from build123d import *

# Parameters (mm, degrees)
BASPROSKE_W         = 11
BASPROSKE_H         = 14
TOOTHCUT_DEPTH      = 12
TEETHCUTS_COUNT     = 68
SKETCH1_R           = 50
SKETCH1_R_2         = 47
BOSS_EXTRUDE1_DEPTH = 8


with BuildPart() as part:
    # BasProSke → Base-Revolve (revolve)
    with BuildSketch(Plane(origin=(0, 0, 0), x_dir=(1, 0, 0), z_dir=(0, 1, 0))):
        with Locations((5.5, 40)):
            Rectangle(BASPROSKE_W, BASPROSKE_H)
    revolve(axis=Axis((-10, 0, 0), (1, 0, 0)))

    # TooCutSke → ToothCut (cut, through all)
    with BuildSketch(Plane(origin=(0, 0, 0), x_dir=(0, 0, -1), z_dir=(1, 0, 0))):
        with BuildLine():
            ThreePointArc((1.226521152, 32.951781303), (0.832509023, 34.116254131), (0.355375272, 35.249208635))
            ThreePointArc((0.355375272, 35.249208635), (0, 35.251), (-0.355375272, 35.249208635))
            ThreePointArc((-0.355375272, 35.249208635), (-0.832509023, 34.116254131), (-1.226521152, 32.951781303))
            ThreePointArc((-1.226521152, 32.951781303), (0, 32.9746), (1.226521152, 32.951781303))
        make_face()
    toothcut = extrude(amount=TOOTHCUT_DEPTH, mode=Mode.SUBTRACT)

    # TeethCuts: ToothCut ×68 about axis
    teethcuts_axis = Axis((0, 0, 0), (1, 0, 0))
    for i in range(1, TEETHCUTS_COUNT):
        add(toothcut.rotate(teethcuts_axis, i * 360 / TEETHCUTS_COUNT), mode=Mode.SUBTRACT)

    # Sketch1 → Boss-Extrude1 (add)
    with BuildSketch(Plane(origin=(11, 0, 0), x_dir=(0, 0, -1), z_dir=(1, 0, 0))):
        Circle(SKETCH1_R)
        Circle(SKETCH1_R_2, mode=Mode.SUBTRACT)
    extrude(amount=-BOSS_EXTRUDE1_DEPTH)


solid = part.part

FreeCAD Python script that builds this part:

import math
import FreeCAD as App
import Part
import Sketcher

V = App.Vector


def add_polygon(sketch, points):
    """Adds a closed chain of lines whose ends are joined by coincident constraints."""
    first, n = sketch.GeometryCount, len(points)
    for a, b in zip(points, points[1:] + points[:1]):
        sketch.addGeometry(Part.LineSegment(App.Vector(*a, 0), App.Vector(*b, 0)), False)
    for i in range(n):
        sketch.addConstraint(Sketcher.Constraint("Coincident", first + i, 2, first + (i + 1) % n, 1))

doc = App.newDocument("Part")
params = doc.addObject("Spreadsheet::Sheet", "Params")
for row, (alias, value) in enumerate([
    ("sketch1_width", "11 mm"),
    ("sketch1_height", "14 mm"),
    ("revolution_angle", "360 deg"),
    ("sketch2_radius", "17 mm"),
    ("sketch3_diameter", "100 mm"),
    ("sketch3_diameter2", "94 mm"),
    ("pad1_length", "8 mm"),
], start=1):
    params.set(f"A{row}", alias)
    params.set(f"B{row}", "=" + value)
    params.setAlias(f"B{row}", alias)

body = doc.addObject("PartDesign::Body", "Body")

# Sketch on XZ plane
sketch1 = doc.addObject("Sketcher::SketchObject", "Sketch")
body.addObject(sketch1)
sketch1.AttachmentSupport = (doc.XZ_Plane, [""])
sketch1.MapMode = "FlatFace"
add_polygon(sketch1, [(0, -47), (0, -33), (11, -33), (11, -47)])  # lines 0-3
sketch1.addConstraint([
    Sketcher.Constraint("Vertical", 0),
    Sketcher.Constraint("Horizontal", 1),
    Sketcher.Constraint("Vertical", 2),
    Sketcher.Constraint("Horizontal", 3),
    Sketcher.Constraint("PointOnObject", 0, 2, -2),
    Sketcher.Constraint("DistanceX", 1, 1, 1, 2, 11.0),
    Sketcher.Constraint("DistanceY", 0, 1, 0, 2, 14.0),
    Sketcher.Constraint("DistanceY", 0, 2, -1, 1, 33.0),
])
sketch1.setExpression("Constraints[9]", "Params.sketch1_width")
sketch1.setExpression("Constraints[10]", "Params.sketch1_height")
revolution = doc.addObject("PartDesign::Revolution", "Revolution")
body.addObject(revolution)
revolution.Profile = sketch1
revolution.ReferenceAxis = (sketch1, ["H_Axis"])
revolution.setExpression("Angle", "Params.revolution_angle")

# Sketch on YZ plane
sketch2 = doc.addObject("Sketcher::SketchObject", "Sketch001")
body.addObject(sketch2)
sketch2.AttachmentSupport = (doc.YZ_Plane, [""])
sketch2.MapMode = "FlatFace"
sketch2.addGeometry([
    Part.ArcOfCircle(Part.Circle(V(28.1, 15.1, 0), V(0, 0, 1), 17), math.radians(-73.38), math.radians(-65.09)),
    Part.ArcOfCircle(Part.Circle(V(0, 0, 0), V(0, 0, 1), 35.3), math.radians(-0.58), math.radians(0.58)),
    Part.ArcOfCircle(Part.Circle(V(28.1, -15.1, 0), V(0, 0, 1), 17), math.radians(65.09), math.radians(73.38)),
    Part.ArcOfCircle(Part.Circle(V(0, 0, 0), V(0, 0, 1), 33), math.radians(-2.13), math.radians(2.13)),
], False)
sketch2.addConstraint([
    Sketcher.Constraint("Coincident", 0, 2, 1, 1),
    Sketcher.Constraint("Coincident", 1, 2, 2, 1),
    Sketcher.Constraint("Coincident", 2, 2, 3, 2),
    Sketcher.Constraint("Coincident", 3, 1, 0, 1),
    Sketcher.Constraint("Coincident", 1, 3, -1, 1),
    Sketcher.Constraint("Coincident", 3, 3, -1, 1),
    Sketcher.Constraint("Equal", 0, 2),
    Sketcher.Constraint("Symmetric", 0, 3, 2, 3, -1),
    Sketcher.Constraint("Radius", 0, 17.0),
    Sketcher.Constraint("Radius", 3, 32.9746),
    Sketcher.Constraint("Radius", 1, 35.250994),
    Sketcher.Constraint("DistanceX", -1, 1, 0, 3, 28.088899),
    Sketcher.Constraint("DistanceY", -1, 1, 0, 3, 15.063119),
])
sketch2.setExpression("Constraints[8]", "Params.sketch2_radius")
pocket1 = doc.addObject("PartDesign::Pocket", "Pocket")
body.addObject(pocket1)
pocket1.Profile = sketch2
pocket1.Type = "ThroughAll"
pocket1.Reversed = True
doc.recompute()

polarpattern = doc.addObject("PartDesign::PolarPattern", "PolarPattern")
body.addObject(polarpattern)
polarpattern.Originals = [pocket1]
polarpattern.Axis = (doc.X_Axis, [""])
polarpattern.Angle = 360
polarpattern.Occurrences = 68
body.Tip = polarpattern

# Sketch on YZ plane
sketch3 = doc.addObject("Sketcher::SketchObject", "Sketch002")
body.addObject(sketch3)
sketch3.AttachmentSupport = (doc.YZ_Plane, [""])
sketch3.MapMode = "FlatFace"
sketch3.AttachmentOffset = App.Placement(V(0, 0, 11), App.Rotation())
sketch3.addGeometry([
    Part.Circle(V(0, 0, 0), V(0, 0, 1), 50),
    Part.Circle(V(0, 0, 0), V(0, 0, 1), 47),
], False)
sketch3.addConstraint([
    Sketcher.Constraint("Coincident", 0, 3, -1, 1),
    Sketcher.Constraint("Coincident", 1, 3, -1, 1),
    Sketcher.Constraint("Diameter", 0, 100.0),
    Sketcher.Constraint("Diameter", 1, 94.0),
])
sketch3.setExpression("Constraints[2]", "Params.sketch3_diameter")
sketch3.setExpression("Constraints[3]", "Params.sketch3_diameter2")
pad1 = doc.addObject("PartDesign::Pad", "Pad")
body.addObject(pad1)
pad1.Profile = sketch3
pad1.setExpression("Length", "Params.pad1_length")
pad1.Reversed = True

doc.recompute()
